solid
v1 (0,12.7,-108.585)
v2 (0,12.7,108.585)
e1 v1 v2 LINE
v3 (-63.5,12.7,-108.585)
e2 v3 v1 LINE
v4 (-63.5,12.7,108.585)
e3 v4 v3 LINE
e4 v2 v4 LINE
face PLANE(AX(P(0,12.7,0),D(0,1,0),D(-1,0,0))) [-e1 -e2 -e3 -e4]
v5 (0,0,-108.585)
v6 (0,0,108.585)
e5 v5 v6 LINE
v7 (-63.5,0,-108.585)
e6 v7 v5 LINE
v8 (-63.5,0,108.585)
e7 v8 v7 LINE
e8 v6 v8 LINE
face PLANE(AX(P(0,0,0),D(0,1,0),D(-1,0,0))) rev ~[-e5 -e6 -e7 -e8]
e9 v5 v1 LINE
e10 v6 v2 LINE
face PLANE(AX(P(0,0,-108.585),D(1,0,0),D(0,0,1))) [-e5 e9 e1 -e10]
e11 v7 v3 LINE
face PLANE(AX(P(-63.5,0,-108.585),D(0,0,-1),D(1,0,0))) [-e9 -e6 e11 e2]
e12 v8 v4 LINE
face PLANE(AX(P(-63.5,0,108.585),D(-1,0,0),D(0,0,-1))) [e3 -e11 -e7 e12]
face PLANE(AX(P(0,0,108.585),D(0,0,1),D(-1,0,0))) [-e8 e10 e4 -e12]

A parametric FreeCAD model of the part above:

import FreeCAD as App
import Part
import Sketcher

V = App.Vector
Q = App.Units.Quantity

doc = App.newDocument("Part")
body = doc.addObject("PartDesign::Body", "Body")

# Sketch on XZ plane
sketch1 = body.newObject("Sketcher::SketchObject", "Sketch")
sketch1.AttachmentSupport = (doc.getObject("XZ_Plane"), [""])
sketch1.MapMode = "FlatFace"
sketch1.addGeometry(Part.LineSegment(V(-64, 109, 0), V(0, 109, 0)), False)
sketch1.addGeometry(Part.LineSegment(V(0, 109, 0), V(0, -109, 0)), False)
sketch1.addGeometry(Part.LineSegment(V(0, -109, 0), V(-64, -109, 0)), False)
sketch1.addGeometry(Part.LineSegment(V(-64, -109, 0), V(-64, 109, 0)), False)
sketch1.addConstraint(Sketcher.Constraint("Coincident", 0, 2, 1, 1))
sketch1.addConstraint(Sketcher.Constraint("Coincident", 1, 2, 2, 1))
sketch1.addConstraint(Sketcher.Constraint("Coincident", 2, 2, 3, 1))
sketch1.addConstraint(Sketcher.Constraint("Coincident", 3, 2, 0, 1))
sketch1.addConstraint(Sketcher.Constraint("Horizontal", 0))
sketch1.addConstraint(Sketcher.Constraint("Vertical", 1))
sketch1.addConstraint(Sketcher.Constraint("Horizontal", 2))
sketch1.addConstraint(Sketcher.Constraint("Vertical", 3))
sketch1.addConstraint(Sketcher.Constraint("Symmetric", 0, 2, 1, 2, -1, 1))
sketch1.addConstraint(Sketcher.Constraint("DistanceX", 0, 1, 0, 2, Q("2.5 in")))
sketch1.addConstraint(Sketcher.Constraint("DistanceY", 1, 2, 1, 1, Q("8.55 in")))
pad1 = body.newObject("PartDesign::Pad", "Pad")
pad1.Profile = sketch1
pad1.Length = Q("0.5 in")
pad1.Reversed = True

doc.recompute()
